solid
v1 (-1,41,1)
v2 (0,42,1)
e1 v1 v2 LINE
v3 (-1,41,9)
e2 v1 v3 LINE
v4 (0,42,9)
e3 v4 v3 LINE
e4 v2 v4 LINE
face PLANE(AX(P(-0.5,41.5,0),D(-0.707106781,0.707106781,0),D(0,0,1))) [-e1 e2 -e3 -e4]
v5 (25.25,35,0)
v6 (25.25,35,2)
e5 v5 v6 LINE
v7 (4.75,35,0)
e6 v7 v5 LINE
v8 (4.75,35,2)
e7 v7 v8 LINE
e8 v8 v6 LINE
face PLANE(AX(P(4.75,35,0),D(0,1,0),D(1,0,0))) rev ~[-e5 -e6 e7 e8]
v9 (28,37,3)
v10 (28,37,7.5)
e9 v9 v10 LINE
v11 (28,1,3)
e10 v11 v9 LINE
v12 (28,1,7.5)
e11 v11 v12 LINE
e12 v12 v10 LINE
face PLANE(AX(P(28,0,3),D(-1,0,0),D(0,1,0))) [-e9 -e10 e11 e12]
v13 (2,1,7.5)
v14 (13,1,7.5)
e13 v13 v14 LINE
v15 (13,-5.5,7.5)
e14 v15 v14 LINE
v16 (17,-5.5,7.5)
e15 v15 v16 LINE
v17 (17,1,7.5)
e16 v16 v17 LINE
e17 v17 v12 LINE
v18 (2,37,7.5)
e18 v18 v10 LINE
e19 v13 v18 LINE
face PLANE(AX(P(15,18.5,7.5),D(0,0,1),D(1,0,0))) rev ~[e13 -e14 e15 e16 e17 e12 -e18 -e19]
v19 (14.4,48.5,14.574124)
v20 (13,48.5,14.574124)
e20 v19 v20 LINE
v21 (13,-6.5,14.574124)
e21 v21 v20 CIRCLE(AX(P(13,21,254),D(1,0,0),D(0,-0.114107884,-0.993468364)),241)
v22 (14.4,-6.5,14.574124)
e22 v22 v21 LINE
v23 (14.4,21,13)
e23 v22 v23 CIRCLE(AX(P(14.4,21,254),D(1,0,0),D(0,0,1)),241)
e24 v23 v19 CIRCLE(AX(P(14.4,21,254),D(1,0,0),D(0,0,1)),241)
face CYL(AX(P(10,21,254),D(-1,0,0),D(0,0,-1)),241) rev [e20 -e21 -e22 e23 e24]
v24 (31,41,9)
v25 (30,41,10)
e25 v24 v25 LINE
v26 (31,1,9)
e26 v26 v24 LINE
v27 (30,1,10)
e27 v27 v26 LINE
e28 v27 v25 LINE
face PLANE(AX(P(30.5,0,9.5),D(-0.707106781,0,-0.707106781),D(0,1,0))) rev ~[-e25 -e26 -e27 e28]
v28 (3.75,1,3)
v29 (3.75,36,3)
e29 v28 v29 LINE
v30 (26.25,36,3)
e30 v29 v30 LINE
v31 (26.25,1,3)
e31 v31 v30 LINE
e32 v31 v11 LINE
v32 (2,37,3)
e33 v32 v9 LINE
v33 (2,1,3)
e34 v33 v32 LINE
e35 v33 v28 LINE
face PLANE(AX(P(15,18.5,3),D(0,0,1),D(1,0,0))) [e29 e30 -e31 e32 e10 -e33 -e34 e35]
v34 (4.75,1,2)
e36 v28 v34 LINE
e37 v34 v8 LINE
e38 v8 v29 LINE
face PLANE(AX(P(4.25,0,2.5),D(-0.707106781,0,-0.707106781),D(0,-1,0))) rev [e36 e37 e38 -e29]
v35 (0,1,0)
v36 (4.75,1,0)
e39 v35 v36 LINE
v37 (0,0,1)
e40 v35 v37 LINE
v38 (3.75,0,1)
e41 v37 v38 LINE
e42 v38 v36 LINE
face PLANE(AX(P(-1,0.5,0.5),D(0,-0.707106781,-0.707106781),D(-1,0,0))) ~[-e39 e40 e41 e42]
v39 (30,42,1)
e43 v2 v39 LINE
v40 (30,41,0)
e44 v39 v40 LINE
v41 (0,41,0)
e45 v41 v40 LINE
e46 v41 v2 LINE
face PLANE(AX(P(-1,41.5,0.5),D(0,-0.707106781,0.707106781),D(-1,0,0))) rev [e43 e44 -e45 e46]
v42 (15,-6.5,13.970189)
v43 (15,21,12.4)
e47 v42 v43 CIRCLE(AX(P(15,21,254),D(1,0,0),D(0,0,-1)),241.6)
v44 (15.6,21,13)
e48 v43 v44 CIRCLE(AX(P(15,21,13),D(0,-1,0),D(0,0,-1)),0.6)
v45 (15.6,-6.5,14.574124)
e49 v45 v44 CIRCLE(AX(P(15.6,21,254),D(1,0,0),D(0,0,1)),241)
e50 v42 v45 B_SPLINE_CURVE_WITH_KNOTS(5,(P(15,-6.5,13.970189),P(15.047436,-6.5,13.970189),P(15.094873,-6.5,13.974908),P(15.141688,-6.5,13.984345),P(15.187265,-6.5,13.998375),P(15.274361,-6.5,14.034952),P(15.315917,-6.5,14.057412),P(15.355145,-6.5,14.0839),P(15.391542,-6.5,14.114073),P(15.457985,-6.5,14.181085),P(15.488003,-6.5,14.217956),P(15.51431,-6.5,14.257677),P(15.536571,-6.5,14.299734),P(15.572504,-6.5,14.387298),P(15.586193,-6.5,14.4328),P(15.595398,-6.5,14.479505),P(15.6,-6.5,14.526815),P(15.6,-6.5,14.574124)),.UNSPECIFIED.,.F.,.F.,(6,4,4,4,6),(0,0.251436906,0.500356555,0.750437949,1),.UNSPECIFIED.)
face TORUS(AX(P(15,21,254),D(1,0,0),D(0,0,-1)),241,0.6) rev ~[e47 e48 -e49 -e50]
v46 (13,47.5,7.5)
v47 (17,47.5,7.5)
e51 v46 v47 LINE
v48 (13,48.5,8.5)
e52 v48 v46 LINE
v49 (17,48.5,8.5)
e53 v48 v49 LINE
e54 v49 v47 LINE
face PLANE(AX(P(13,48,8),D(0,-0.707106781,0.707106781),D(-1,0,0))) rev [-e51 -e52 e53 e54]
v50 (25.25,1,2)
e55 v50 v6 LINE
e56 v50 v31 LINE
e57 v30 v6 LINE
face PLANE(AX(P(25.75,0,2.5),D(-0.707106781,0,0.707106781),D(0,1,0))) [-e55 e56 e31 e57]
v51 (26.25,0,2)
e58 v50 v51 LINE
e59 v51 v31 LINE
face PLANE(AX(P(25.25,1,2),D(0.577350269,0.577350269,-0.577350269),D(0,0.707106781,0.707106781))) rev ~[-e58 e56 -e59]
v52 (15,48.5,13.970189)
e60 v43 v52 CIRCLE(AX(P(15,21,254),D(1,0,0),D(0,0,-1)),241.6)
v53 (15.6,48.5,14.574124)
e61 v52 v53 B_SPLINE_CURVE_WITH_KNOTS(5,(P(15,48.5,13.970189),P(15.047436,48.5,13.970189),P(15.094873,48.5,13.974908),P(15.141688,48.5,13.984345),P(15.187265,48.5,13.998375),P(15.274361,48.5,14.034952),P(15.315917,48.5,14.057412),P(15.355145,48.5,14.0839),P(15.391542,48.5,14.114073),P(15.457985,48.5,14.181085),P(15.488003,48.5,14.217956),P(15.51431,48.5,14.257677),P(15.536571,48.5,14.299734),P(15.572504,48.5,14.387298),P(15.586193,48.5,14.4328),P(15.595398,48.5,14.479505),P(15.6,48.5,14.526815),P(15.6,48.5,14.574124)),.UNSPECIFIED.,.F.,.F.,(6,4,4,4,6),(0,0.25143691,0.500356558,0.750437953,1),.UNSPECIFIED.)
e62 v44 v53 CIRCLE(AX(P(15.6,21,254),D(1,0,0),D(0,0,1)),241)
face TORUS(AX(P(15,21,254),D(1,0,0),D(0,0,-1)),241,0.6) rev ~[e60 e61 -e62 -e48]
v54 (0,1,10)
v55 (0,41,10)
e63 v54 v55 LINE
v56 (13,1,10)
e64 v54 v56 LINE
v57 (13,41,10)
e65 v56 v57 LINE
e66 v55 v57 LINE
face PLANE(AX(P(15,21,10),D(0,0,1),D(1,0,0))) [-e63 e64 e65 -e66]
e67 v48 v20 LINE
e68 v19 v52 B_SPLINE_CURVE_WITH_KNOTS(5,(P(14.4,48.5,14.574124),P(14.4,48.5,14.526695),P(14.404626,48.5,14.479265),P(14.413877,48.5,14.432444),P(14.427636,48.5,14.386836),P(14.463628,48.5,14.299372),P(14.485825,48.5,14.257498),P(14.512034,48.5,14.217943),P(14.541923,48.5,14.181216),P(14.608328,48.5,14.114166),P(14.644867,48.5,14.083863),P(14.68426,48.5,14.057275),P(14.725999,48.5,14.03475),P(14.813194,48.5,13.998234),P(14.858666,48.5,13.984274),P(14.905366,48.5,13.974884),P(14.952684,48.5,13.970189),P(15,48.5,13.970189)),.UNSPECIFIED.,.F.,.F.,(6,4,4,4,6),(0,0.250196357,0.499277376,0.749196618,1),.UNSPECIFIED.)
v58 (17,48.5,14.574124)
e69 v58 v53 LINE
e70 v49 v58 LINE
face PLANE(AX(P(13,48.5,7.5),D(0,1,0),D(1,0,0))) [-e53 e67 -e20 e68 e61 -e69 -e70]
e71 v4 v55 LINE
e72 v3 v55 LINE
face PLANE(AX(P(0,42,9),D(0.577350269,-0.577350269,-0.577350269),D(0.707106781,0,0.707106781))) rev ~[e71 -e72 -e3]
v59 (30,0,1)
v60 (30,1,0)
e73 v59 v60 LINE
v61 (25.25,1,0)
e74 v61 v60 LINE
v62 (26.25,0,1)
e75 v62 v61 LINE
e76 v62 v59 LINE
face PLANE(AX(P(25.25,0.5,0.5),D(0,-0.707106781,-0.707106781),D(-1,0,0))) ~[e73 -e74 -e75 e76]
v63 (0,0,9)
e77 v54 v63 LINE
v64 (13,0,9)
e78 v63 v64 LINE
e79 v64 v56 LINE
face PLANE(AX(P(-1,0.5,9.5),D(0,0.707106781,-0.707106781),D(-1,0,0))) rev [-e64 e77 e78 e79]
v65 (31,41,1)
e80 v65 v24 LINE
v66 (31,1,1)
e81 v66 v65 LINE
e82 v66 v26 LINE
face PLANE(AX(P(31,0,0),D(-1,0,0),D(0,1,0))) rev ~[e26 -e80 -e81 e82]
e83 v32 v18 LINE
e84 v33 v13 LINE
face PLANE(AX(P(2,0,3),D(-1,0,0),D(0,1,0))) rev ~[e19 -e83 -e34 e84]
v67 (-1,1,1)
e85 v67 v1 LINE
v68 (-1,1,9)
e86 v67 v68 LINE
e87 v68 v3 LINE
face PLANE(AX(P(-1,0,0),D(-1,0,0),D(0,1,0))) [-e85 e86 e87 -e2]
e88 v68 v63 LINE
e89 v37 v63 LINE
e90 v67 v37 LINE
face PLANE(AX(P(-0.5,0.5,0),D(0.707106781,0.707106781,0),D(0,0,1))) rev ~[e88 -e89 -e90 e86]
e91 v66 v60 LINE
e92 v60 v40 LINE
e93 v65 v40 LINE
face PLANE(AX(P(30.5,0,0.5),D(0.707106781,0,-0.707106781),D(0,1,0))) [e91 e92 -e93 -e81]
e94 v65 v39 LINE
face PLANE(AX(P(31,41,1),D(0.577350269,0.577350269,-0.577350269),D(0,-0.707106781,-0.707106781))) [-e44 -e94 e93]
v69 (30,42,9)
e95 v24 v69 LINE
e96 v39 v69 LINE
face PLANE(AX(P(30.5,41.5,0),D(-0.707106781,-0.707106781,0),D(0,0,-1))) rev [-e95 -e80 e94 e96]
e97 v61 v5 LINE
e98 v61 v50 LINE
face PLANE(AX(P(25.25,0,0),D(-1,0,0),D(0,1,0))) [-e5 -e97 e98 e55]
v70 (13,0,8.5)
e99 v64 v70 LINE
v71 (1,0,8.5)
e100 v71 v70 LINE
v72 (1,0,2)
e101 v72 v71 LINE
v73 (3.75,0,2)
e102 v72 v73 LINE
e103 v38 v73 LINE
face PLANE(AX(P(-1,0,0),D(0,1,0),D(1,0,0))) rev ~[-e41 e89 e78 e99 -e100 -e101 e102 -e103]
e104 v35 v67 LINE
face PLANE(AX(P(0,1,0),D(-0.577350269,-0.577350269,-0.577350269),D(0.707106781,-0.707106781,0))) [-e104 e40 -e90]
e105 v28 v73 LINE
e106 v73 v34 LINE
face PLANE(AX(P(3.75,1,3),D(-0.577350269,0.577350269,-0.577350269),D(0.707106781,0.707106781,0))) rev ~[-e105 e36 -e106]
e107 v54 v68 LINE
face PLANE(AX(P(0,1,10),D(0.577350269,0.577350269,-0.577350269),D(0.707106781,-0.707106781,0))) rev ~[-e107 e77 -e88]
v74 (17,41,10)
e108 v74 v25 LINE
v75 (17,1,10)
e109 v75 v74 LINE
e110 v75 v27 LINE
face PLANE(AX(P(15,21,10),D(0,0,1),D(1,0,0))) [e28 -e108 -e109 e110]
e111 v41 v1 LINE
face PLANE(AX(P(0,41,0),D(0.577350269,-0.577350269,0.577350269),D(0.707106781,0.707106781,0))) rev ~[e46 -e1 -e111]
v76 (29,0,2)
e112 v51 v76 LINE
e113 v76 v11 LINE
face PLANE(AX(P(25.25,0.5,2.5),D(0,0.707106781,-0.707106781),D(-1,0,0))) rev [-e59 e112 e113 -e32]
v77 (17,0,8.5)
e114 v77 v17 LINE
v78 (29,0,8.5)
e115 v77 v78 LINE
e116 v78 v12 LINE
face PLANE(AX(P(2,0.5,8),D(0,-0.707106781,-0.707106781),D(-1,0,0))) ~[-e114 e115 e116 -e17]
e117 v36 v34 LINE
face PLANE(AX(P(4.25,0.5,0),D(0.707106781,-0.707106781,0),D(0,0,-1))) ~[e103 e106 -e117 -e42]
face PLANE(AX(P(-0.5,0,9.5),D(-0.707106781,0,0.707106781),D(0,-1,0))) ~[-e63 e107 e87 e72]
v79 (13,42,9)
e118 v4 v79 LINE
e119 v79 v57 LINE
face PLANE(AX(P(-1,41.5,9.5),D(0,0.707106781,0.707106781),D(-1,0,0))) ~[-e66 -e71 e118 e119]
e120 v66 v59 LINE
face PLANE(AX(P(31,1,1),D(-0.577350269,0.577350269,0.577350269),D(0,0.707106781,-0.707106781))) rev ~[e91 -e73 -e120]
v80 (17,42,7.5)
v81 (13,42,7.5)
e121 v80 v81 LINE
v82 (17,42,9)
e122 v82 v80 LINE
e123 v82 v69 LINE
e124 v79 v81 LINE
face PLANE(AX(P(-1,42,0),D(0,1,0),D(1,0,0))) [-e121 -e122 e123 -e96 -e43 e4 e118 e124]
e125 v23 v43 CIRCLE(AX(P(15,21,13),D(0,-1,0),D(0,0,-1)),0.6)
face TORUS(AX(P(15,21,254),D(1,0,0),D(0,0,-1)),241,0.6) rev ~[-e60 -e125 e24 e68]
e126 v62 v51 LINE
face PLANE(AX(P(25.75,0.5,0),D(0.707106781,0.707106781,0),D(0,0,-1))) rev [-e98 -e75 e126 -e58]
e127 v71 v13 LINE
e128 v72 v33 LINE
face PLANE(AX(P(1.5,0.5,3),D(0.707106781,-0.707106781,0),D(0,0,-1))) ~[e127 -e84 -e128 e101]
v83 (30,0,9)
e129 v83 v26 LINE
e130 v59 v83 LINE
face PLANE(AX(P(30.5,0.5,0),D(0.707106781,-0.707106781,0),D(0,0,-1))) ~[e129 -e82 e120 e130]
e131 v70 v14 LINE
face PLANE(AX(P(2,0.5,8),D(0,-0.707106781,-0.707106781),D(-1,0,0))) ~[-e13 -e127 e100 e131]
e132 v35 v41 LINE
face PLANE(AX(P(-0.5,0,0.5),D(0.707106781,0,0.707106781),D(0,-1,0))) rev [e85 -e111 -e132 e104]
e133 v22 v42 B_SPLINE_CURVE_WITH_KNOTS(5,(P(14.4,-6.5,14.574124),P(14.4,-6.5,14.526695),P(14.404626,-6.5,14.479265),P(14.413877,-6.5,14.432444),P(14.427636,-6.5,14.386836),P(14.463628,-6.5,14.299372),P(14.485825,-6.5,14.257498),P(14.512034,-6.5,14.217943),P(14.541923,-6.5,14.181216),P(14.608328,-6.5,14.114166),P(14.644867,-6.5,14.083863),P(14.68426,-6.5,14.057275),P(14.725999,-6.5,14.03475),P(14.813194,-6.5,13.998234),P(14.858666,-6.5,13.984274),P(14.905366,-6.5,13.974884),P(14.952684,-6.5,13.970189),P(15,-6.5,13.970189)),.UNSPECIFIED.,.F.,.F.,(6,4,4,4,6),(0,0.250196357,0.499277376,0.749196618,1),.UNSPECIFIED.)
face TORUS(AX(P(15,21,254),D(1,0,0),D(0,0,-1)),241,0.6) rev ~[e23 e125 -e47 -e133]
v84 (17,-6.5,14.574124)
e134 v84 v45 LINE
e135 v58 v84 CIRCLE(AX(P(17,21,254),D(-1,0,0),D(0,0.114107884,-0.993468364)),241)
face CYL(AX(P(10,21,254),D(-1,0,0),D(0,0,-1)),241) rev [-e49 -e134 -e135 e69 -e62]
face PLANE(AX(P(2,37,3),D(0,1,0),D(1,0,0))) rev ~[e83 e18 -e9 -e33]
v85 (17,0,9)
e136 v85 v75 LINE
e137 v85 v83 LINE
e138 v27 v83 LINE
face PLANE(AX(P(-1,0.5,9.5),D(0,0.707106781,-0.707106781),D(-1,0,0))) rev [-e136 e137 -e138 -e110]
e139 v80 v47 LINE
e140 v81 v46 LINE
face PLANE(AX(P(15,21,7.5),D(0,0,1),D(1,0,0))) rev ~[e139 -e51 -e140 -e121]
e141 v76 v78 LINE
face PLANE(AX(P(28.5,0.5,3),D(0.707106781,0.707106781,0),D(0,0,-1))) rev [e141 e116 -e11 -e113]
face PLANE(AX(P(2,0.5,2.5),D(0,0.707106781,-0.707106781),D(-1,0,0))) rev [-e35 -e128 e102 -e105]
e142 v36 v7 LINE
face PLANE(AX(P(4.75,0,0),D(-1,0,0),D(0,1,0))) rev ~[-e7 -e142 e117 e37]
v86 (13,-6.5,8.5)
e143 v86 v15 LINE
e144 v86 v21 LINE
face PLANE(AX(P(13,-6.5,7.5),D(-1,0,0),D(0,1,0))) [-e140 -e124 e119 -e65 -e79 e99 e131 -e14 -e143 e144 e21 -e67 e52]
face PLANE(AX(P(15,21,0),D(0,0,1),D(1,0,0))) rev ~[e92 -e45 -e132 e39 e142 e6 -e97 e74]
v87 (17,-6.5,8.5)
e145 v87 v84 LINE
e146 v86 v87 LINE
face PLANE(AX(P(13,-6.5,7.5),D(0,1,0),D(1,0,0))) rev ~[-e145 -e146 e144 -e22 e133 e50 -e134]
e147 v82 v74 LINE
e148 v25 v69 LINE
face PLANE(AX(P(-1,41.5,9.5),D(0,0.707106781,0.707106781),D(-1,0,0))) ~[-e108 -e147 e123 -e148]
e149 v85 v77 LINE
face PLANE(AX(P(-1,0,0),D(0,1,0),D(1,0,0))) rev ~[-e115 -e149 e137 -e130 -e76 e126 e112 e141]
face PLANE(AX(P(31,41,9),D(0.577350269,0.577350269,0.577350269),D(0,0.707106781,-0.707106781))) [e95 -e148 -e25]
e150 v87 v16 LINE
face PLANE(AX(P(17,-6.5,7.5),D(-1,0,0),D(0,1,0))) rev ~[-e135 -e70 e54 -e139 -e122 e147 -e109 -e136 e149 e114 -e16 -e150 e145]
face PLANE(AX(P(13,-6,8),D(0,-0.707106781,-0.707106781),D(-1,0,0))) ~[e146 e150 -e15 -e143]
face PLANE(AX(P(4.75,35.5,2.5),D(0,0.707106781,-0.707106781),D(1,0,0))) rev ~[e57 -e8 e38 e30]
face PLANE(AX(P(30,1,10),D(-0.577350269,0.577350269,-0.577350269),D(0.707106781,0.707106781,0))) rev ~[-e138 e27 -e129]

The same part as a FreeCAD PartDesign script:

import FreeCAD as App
import Part
import Sketcher

V = App.Vector


def edges_at(feature, points):
    """Names of the edges that pass closest to the given points."""
    edges = feature.Shape.Edges
    near = lambda p: min(range(len(edges)), key=lambda i: edges[i].distToShape(Part.Vertex(*p))[0])
    return sorted({f"Edge{near(p) + 1}" for p in points})


def add_polygon(sketch, points):
    """Adds a closed chain of lines whose ends are joined by coincident constraints."""
    first, n = sketch.GeometryCount, len(points)
    for a, b in zip(points, points[1:] + points[:1]):
        sketch.addGeometry(Part.LineSegment(App.Vector(*a, 0), App.Vector(*b, 0)), False)
    for i in range(n):
        sketch.addConstraint(Sketcher.Constraint("Coincident", first + i, 2, first + (i + 1) % n, 1))

doc = App.newDocument("Part")
body = doc.addObject("PartDesign::Body", "Body")

sketch1 = body.newObject("Sketcher::SketchObject", "Sketch")
sketch1.AttachmentSupport = (doc.getObject("XY_Plane"), [""])
sketch1.MapMode = "FlatFace"
add_polygon(sketch1, [(5, 35), (5, 0), (25, 0), (25, 35)])
sketch1.addConstraint([
    Sketcher.Constraint("Vertical", 0),
    Sketcher.Constraint("Horizontal", 1),
    Sketcher.Constraint("Vertical", 2),
    Sketcher.Constraint("Horizontal", 3),
    Sketcher.Constraint("PointOnObject", 0, 2, -1),
    Sketcher.Constraint("DistanceY", 0, 2, 0, 1, 35.0),
    Sketcher.Constraint("DistanceX", 1, 1, 1, 2, 20.5),
    Sketcher.Constraint("DistanceX", -1, 1, 0, 2, 4.75),
])
pad1 = body.newObject("PartDesign::Pad", "Pad")
pad1.Profile = sketch1
pad1.Length = 3
body2 = doc.addObject("PartDesign::Body", "Body001")

sketch2 = body2.newObject("Sketcher::SketchObject", "Sketch001")
sketch2.AttachmentSupport = (doc.getObject("XY_Plane001"), [""])
sketch2.MapMode = "FlatFace"
sketch2.AttachmentOffset = App.Placement(V(0, 0, 3), App.Rotation())
add_polygon(sketch2, [(2, 37), (2, 0), (28, 0), (28, 37)])
sketch2.addConstraint([
    Sketcher.Constraint("Vertical", 0),
    Sketcher.Constraint("Horizontal", 1),
    Sketcher.Constraint("Vertical", 2),
    Sketcher.Constraint("Horizontal", 3),
    Sketcher.Constraint("PointOnObject", 0, 2, -1),
    Sketcher.Constraint("DistanceX", 1, 1, 1, 2, 26.0),
    Sketcher.Constraint("DistanceY", 0, 2, 0, 1, 37.0),
    Sketcher.Constraint("DistanceX", -1, 1, 0, 2, 2.0),
])
pad2 = body2.newObject("PartDesign::Pad", "Pad001")
pad2.Profile = sketch2
pad2.Length = 4.5
doc.recompute()

boolean = body2.newObject("PartDesign::Boolean", "Boolean")
boolean.Type = "Fuse"
boolean.addObjects([body])
body3 = doc.addObject("PartDesign::Body", "Body002")

sketch3 = body3.newObject("Sketcher::SketchObject", "Sketch002")
sketch3.AttachmentSupport = (doc.getObject("XY_Plane002"), [""])
sketch3.MapMode = "FlatFace"
add_polygon(sketch3, [(-1, 42), (-1, 0), (31, 0), (31, 42)])
sketch3.addConstraint([
    Sketcher.Constraint("Vertical", 0),
    Sketcher.Constraint("Horizontal", 1),
    Sketcher.Constraint("Vertical", 2),
    Sketcher.Constraint("Horizontal", 3),
    Sketcher.Constraint("PointOnObject", 0, 2, -1),
    Sketcher.Constraint("DistanceX", 1, 1, 1, 2, 32.0),
    Sketcher.Constraint("DistanceY", 0, 2, 0, 1, 42.0),
    Sketcher.Constraint("DistanceX", 0, 2, -1, 1, 1.0),
])
pad3 = body3.newObject("PartDesign::Pad", "Pad002")
pad3.Profile = sketch3
pad3.Length = 10
doc.recompute()

boolean2 = body3.newObject("PartDesign::Boolean", "Boolean001")
boolean2.Type = "Cut"
boolean2.addObjects([body2])
doc.recompute()

chamfer = body3.newObject("PartDesign::Chamfer", "Chamfer")
chamfer.Base = (boolean2, edges_at(boolean2, [
    (-1, 0, 5),
    (-1, 21, 10),
    (-1, 42, 5),
    (-1, 21, 0),
    (1.875, 0, 0),
    (4.75, 0, 1.5),
    (3.375, 0, 3),
    (2, 0, 5.25),
    (15, 0, 7.5),
    (28, 0, 5.25),
    (26.625, 0, 3),
    (25.25, 0, 1.5),
    (28.125, 0, 0),
    (31, 0, 5),
    (15, 0, 10),
    (15, 42, 10),
    (31, 21, 10),
    (15, 42, 0),
    (31, 42, 5),
    (31, 21, 0),
    (4.75, 17.5, 3),
    (25.25, 17.5, 3),
    (15, 35, 3),
]))
chamfer.Size = 1
body4 = doc.addObject("PartDesign::Body", "Body003")

sketch4 = body4.newObject("Sketcher::SketchObject", "Sketch003")
sketch4.AttachmentSupport = (doc.getObject("YZ_Plane003"), [""])
sketch4.MapMode = "FlatFace"
sketch4.AttachmentOffset = App.Placement(V(0, 0, 10), App.Rotation())
sketch4.addGeometry(Part.Circle(V(0, 0, 0), V(0, 0, 1), 241), False)
sketch4.addConstraint([
    Sketcher.Constraint("Coincident", 0, 3, -1, 1),
    Sketcher.Constraint("Diameter", 0, 482.0),
])
pad4 = body4.newObject("PartDesign::Pad", "Pad003")
pad4.Profile = sketch4
pad4.Length = 10
body5 = doc.addObject("PartDesign::Body", "Body004")

sketch5 = body5.newObject("Sketcher::SketchObject", "Sketch004")
sketch5.AttachmentSupport = (doc.getObject("XZ_Plane004"), [""])
sketch5.MapMode = "FlatFace"
sketch5.addGeometry(Part.Circle(V(15, -241, 0), V(0, 0, 1), 0.6), False)
sketch5.addConstraint([
    Sketcher.Constraint("Diameter", 0, 1.2),
    Sketcher.Constraint("DistanceX", -1, 1, 0, 3, 15.0),
    Sketcher.Constraint("DistanceY", 0, 3, -1, 1, 241.0),
])
revolution = body5.newObject("PartDesign::Revolution", "Revolution")
revolution.Profile = sketch5
revolution.ReferenceAxis = (sketch5, ["H_Axis"])
revolution.Angle = 360
doc.recompute()

boolean3 = body5.newObject("PartDesign::Boolean", "Boolean002")
boolean3.Type = "Fuse"
boolean3.addObjects([body4])
body6 = doc.addObject("PartDesign::Body", "Body005")
doc.recompute()

body5.Placement = App.Placement(V(0, 21, 254), App.Rotation(V(0, 0, 1), 0))
boolean4 = body6.newObject("PartDesign::Boolean", "Boolean003")
boolean4.Type = "Fuse"
boolean4.addObjects([body5])
body7 = doc.addObject("PartDesign::Body", "Body006")

sketch6 = body7.newObject("Sketcher::SketchObject", "Sketch005")
sketch6.AttachmentSupport = (doc.getObject("XY_Plane006"), [""])
sketch6.MapMode = "FlatFace"
sketch6.AttachmentOffset = App.Placement(V(0, 0, 7.5), App.Rotation())
add_polygon(sketch6, [(13, 48.5), (13, -6.5), (17, -6.5), (17, 48.5)])
sketch6.addConstraint([
    Sketcher.Constraint("Vertical", 0),
    Sketcher.Constraint("Horizontal", 1),
    Sketcher.Constraint("Vertical", 2),
    Sketcher.Constraint("Horizontal", 3),
    Sketcher.Constraint("DistanceX", 1, 1, 1, 2, 4.0),
    Sketcher.Constraint("DistanceY", 0, 2, 0, 1, 55.0),
    Sketcher.Constraint("DistanceX", -1, 1, 0, 2, 13.0),
    Sketcher.Constraint("DistanceY", 0, 2, -1, 1, 6.5),
])
pad5 = body7.newObject("PartDesign::Pad", "Pad004")
pad5.Profile = sketch6
pad5.Length = 20
doc.recompute()

boolean5 = body7.newObject("PartDesign::Boolean", "Boolean004")
boolean5.Type = "Cut"
boolean5.addObjects([body6])
doc.recompute()

chamfer2 = body7.newObject("PartDesign::Chamfer", "Chamfer001")
chamfer2.Base = (boolean5, edges_at(boolean5, [(15, -6.5, 7.5), (15, 48.5, 7.5)]))
chamfer2.Size = 1
doc.recompute()

boolean6 = body7.newObject("PartDesign::Boolean", "Boolean005")
boolean6.Type = "Fuse"
boolean6.addObjects([body3])

doc.recompute()
